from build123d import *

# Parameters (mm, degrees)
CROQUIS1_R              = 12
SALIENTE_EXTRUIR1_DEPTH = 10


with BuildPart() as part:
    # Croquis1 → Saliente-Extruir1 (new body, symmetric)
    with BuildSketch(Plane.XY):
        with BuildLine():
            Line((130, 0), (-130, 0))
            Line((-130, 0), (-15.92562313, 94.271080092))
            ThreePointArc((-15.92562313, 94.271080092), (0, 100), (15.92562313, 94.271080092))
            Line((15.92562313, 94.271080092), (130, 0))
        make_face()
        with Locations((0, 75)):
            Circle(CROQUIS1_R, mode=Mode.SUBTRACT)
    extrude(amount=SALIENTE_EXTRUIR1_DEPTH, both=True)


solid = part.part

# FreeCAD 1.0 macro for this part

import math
import FreeCAD as App
import Part
import Sketcher
from FreeCAD import Vector

doc = App.newDocument("Part")
params = doc.addObject("Spreadsheet::Sheet", "Params")
for row, (alias, value) in enumerate([
    ("sketch1_diameter", "24 mm"),
    ("sketch1_radius", "25 mm"),
    ("sketch1_width", "260 mm"),
    ("pad1_length", "20 mm"),
], start=1):
    params.set(f"A{row}", alias)
    params.set(f"B{row}", "=" + value)
    params.setAlias(f"B{row}", alias)

body = doc.addObject("PartDesign::Body", "Body")

# Sketch on XY plane
sketch1 = body.newObject("Sketcher::SketchObject", "Sketch")
sketch1.AttachmentSupport = (doc.getObject("XY_Plane"), [""])
sketch1.MapMode = "FlatFace"
sketch1.addGeometry(Part.LineSegment(Vector(-130, 0, 0), Vector(130, 0, 0)), False)
sketch1.addGeometry(Part.LineSegment(Vector(130, 0, 0), Vector(16, 94, 0)), False)
sketch1.addGeometry(Part.ArcOfCircle(Part.Circle(Vector(0, 75, 0), Vector(0, 0, 1), 25), math.radians(50), math.radians(130)), False)
sketch1.addGeometry(Part.LineSegment(Vector(-16, 94, 0), Vector(-130, 0, 0)), False)
sketch1.addGeometry(Part.Circle(Vector(0, 75, 0), Vector(0, 0, 1), 12), False)
sketch1.addConstraint(Sketcher.Constraint("Coincident", 0, 2, 1, 1))
sketch1.addConstraint(Sketcher.Constraint("Tangent", 1, 2, 2, 1))
sketch1.addConstraint(Sketcher.Constraint("Tangent", 2, 2, 3, 1))
sketch1.addConstraint(Sketcher.Constraint("Coincident", 3, 2, 0, 1))
sketch1.addConstraint(Sketcher.Constraint("Horizontal", 0))
sketch1.addConstraint(Sketcher.Constraint("Coincident", 4, 3, 2, 3))
sketch1.addConstraint(Sketcher.Constraint("Symmetric", 0, 2, 3, 2, -1, 1))
sketch1.addConstraint(Sketcher.Constraint("PointOnObject", 2, 3, -2))
sketch1.addConstraint(Sketcher.Constraint("Diameter", 4, 24.0))
sketch1.addConstraint(Sketcher.Constraint("Radius", 2, 25.0))
sketch1.addConstraint(Sketcher.Constraint("DistanceX", 0, 1, 0, 2, 260.0))
sketch1.addConstraint(Sketcher.Constraint("DistanceY", -1, 1, 2, 3, 75.0))
sketch1.setExpression("Constraints[8]", "Params.sketch1_diameter")
sketch1.setExpression("Constraints[9]", "Params.sketch1_radius")
sketch1.setExpression("Constraints[10]", "Params.sketch1_width")
pad1 = body.newObject("PartDesign::Pad", "Pad")
pad1.Profile = sketch1
pad1.setExpression("Length", "Params.pad1_length")
pad1.Midplane = True

doc.recompute()
